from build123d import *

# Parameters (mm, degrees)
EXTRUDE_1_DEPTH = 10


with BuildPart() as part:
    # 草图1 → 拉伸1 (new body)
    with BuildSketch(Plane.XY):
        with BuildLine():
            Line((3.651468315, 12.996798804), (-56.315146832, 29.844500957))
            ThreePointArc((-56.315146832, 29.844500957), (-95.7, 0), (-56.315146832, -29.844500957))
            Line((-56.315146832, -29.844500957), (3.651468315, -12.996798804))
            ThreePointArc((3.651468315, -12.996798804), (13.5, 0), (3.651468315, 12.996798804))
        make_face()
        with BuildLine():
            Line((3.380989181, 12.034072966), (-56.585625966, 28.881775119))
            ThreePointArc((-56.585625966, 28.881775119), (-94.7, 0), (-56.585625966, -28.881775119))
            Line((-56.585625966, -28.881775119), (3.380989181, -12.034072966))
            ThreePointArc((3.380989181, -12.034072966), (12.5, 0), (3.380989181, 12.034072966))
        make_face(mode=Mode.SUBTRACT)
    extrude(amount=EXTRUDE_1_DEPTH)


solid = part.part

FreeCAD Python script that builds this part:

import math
import FreeCAD as App
import Part
import Sketcher
from FreeCAD import Vector

doc = App.newDocument("Part")
body = doc.addObject("PartDesign::Body", "Body")

# Sketch on XY plane
sketch1 = doc.addObject("Sketcher::SketchObject", "Sketch")
body.addObject(sketch1)
sketch1.AttachmentSupport = (doc.XY_Plane, [""])
sketch1.MapMode = "FlatFace"
sketch1.addGeometry([
    Part.LineSegment(Vector(4, 13, 0), Vector(-56, 30, 0)),  # 0
    Part.ArcOfCircle(Part.Circle(Vector(-65, 0, 0), Vector(0, 0, 1), 31), math.radians(74), math.radians(286)),  # 1
    Part.LineSegment(Vector(-56, -30, 0), Vector(4, -13, 0)),  # 2
    Part.ArcOfCircle(Part.Circle(Vector(0, 0, 0), Vector(0, 0, 1), 14), math.radians(-74), math.radians(74)),  # 3
    Part.LineSegment(Vector(-57, 29, 0), Vector(3, 12, 0)),  # 4
    Part.ArcOfCircle(Part.Circle(Vector(0, 0, 0), Vector(0, 0, 1), 12), math.radians(-74), math.radians(74)),  # 5
    Part.LineSegment(Vector(3, -12, 0), Vector(-57, -29, 0)),  # 6
    Part.ArcOfCircle(Part.Circle(Vector(-65, 0, 0), Vector(0, 0, 1), 30), math.radians(74), math.radians(286)),  # 7
], False)
sketch1.addConstraint([
    Sketcher.Constraint("Tangent", 0, 2, 1, 1),
    Sketcher.Constraint("Tangent", 1, 2, 2, 1),
    Sketcher.Constraint("Tangent", 2, 2, 3, 1),
    Sketcher.Constraint("Tangent", 3, 2, 0, 1),
    Sketcher.Constraint("Tangent", 4, 2, 5, 2),
    Sketcher.Constraint("Tangent", 5, 1, 6, 1),
    Sketcher.Constraint("Tangent", 6, 2, 7, 2),
    Sketcher.Constraint("Tangent", 7, 1, 4, 1),
    Sketcher.Constraint("Coincident", 3, 3, -1, 1),
    Sketcher.Constraint("Coincident", 5, 3, -1, 1),
    Sketcher.Constraint("Coincident", 7, 3, 1, 3),
    Sketcher.Constraint("PointOnObject", 1, 3, -1),
    Sketcher.Constraint("Parallel", 0, 4),
    Sketcher.Constraint("Radius", 1, 31.0),
    Sketcher.Constraint("Radius", 7, 30.0),
    Sketcher.Constraint("Radius", 3, 13.5),
    Sketcher.Constraint("DistanceX", 1, 3, -1, 1, 64.7),
])
pad1 = doc.addObject("PartDesign::Pad", "Pad")
body.addObject(pad1)
pad1.Profile = sketch1
pad1.Length = 10

doc.recompute()
